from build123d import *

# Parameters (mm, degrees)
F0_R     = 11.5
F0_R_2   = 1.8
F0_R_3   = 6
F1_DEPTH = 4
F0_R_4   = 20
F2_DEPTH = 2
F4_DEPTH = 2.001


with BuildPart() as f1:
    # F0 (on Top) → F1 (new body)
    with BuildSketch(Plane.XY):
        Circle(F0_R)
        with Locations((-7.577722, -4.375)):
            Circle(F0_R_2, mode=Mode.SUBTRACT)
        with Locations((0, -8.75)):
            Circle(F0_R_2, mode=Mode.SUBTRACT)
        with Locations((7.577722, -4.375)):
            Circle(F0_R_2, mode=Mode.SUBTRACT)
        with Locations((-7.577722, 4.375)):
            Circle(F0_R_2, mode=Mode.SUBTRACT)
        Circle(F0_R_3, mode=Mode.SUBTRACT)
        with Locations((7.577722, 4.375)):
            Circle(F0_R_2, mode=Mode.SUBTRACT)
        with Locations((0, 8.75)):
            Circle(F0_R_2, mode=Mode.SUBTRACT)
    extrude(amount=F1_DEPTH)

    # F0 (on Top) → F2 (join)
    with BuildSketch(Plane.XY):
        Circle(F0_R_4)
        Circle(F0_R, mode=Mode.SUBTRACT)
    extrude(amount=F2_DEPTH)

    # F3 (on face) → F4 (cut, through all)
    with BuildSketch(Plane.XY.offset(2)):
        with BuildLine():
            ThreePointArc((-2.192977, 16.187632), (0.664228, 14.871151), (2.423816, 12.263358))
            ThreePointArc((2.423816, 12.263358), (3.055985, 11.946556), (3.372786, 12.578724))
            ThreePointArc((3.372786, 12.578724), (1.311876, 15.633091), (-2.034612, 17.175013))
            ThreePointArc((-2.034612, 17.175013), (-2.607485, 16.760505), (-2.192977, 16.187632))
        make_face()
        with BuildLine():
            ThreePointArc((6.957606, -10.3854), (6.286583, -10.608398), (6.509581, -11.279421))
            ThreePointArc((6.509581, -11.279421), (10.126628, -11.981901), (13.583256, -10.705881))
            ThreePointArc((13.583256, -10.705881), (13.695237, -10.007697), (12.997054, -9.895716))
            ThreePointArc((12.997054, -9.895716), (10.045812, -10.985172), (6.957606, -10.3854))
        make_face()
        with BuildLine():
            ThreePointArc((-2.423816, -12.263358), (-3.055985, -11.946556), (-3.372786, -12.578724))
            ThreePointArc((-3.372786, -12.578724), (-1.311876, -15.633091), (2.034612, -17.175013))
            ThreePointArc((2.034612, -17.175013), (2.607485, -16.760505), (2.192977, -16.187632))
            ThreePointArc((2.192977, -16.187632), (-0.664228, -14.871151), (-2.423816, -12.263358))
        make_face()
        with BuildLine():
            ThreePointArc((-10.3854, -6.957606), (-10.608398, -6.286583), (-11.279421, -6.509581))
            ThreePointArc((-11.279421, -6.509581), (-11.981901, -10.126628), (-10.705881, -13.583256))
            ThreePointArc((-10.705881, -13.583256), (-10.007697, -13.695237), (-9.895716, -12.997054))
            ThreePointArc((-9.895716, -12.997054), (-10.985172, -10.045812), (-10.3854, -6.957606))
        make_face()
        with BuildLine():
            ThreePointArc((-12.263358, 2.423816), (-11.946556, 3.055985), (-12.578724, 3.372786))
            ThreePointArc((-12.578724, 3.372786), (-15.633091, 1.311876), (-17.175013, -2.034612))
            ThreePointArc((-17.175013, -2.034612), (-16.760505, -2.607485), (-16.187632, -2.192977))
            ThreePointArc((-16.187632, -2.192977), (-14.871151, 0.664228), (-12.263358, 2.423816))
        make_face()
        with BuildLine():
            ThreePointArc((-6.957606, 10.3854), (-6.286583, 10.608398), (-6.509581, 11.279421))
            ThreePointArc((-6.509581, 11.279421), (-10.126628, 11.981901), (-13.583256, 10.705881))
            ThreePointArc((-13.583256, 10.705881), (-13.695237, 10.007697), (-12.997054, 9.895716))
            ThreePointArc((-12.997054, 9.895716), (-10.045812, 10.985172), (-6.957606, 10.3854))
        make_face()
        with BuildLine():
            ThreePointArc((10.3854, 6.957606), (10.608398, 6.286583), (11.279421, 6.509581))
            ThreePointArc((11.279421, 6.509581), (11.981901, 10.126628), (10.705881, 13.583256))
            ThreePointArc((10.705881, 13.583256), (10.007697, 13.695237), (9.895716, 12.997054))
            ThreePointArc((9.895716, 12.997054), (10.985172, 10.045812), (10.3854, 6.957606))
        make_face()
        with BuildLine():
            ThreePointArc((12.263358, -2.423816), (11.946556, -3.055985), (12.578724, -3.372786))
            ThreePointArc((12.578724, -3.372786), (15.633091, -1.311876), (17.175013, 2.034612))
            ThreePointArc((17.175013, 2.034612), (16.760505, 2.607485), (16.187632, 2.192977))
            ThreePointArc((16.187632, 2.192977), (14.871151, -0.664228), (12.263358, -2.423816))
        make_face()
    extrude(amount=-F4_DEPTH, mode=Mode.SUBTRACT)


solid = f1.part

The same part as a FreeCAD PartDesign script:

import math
import FreeCAD as App
import Part
import Sketcher
from FreeCAD import Vector

doc = App.newDocument("Part")
body = doc.addObject("PartDesign::Body", "Body")

sketch1 = body.newObject("Sketcher::SketchObject", "Sketch")
sketch1.AttachmentSupport = (doc.getObject("XY_Plane"), [""])
sketch1.MapMode = "FlatFace"
sketch1.addGeometry(Part.Circle(Vector(0, 0, 0), Vector(0, 0, 1), 11.5), False)
sketch1.addGeometry(Part.Circle(Vector(0, -8.8, 0), Vector(0, 0, 1), 1.8), False)
sketch1.addGeometry(Part.Circle(Vector(-7.6, -4.4, 0), Vector(0, 0, 1), 1.8), False)
sketch1.addGeometry(Part.Circle(Vector(7.6, -4.4, 0), Vector(0, 0, 1), 1.8), False)
sketch1.addGeometry(Part.Circle(Vector(-7.6, 4.4, 0), Vector(0, 0, 1), 1.8), False)
sketch1.addGeometry(Part.Circle(Vector(0, 0, 0), Vector(0, 0, 1), 6), False)
sketch1.addGeometry(Part.Circle(Vector(0, 8.8, 0), Vector(0, 0, 1), 1.8), False)
sketch1.addGeometry(Part.Circle(Vector(7.6, 4.4, 0), Vector(0, 0, 1), 1.8), False)
sketch1.addConstraint(Sketcher.Constraint("Coincident", 0, 3, -1, 1))
sketch1.addConstraint(Sketcher.Constraint("Coincident", 5, 3, -1, 1))
sketch1.addConstraint(Sketcher.Constraint("Equal", 1, 2))
sketch1.addConstraint(Sketcher.Constraint("Equal", 2, 3))
sketch1.addConstraint(Sketcher.Constraint("Equal", 3, 4))
sketch1.addConstraint(Sketcher.Constraint("Equal", 4, 6))
sketch1.addConstraint(Sketcher.Constraint("Equal", 6, 7))
sketch1.addConstraint(Sketcher.Constraint("Symmetric", 3, 3, 4, 3, -1, 1))
sketch1.addConstraint(Sketcher.Constraint("Symmetric", 1, 3, 6, 3, -1, 1))
sketch1.addConstraint(Sketcher.Constraint("Symmetric", 2, 3, 7, 3, -1, 1))
sketch1.addConstraint(Sketcher.Constraint("Symmetric", 2, 3, 3, 3, -2))
sketch1.addConstraint(Sketcher.Constraint("PointOnObject", 1, 3, -2))
sketch1.addConstraint(Sketcher.Constraint("Diameter", 0, 23.0))
sketch1.addConstraint(Sketcher.Constraint("Diameter", 5, 12.0))
sketch1.addConstraint(Sketcher.Constraint("Diameter", 1, 3.6))
sketch1.addConstraint(Sketcher.Constraint("DistanceY", 1, 3, -1, 1, 8.75))
sketch1.addConstraint(Sketcher.Constraint("DistanceY", 2, 3, 4, 3, 8.75))
sketch1.addConstraint(Sketcher.Constraint("DistanceX", 2, 3, -1, 1, 7.577722))
pad1 = body.newObject("PartDesign::Pad", "Pad")
pad1.Profile = sketch1
pad1.Length = 4

sketch2 = body.newObject("Sketcher::SketchObject", "Sketch001")
sketch2.AttachmentSupport = (doc.getObject("XY_Plane"), [""])
sketch2.MapMode = "FlatFace"
sketch2.addGeometry(Part.Circle(Vector(0, 0, 0), Vector(0, 0, 1), 20), False)
sketch2.addGeometry(Part.Circle(Vector(0, 0, 0), Vector(0, 0, 1), 12), False)
sketch2.addConstraint(Sketcher.Constraint("Coincident", 0, 3, -1, 1))
sketch2.addConstraint(Sketcher.Constraint("Coincident", 1, 3, -1, 1))
sketch2.addConstraint(Sketcher.Constraint("Diameter", 0, 40.0))
sketch2.addConstraint(Sketcher.Constraint("Diameter", 1, 23.0))
pad2 = body.newObject("PartDesign::Pad", "Pad001")
pad2.Profile = sketch2
pad2.Length = 2

sketch3 = body.newObject("Sketcher::SketchObject", "Sketch002")
sketch3.AttachmentSupport = (doc.getObject("XY_Plane"), [""])
sketch3.MapMode = "FlatFace"
sketch3.AttachmentOffset = App.Placement(Vector(0, 0, 2), App.Rotation())
sketch3.addGeometry(Part.ArcOfCircle(Part.Circle(Vector(-3.12, 10.42, 0), Vector(0, 0, 1), 5.84), math.radians(18), math.radians(81)), False)
sketch3.addGeometry(Part.ArcOfCircle(Part.Circle(Vector(2.9, 12.42, 0), Vector(0, 0, 1), 0.5), math.radians(-162), math.radians(18)), False)
sketch3.addGeometry(Part.ArcOfCircle(Part.Circle(Vector(-3.12, 10.42, 0), Vector(0, 0, 1), 6.84), math.radians(18), math.radians(81)), False)
sketch3.addGeometry(Part.ArcOfCircle(Part.Circle(Vector(-2.11, 16.68, 0), Vector(0, 0, 1), 0.5), math.radians(81), math.radians(261)), False)
sketch3.addGeometry(Part.ArcOfCircle(Part.Circle(Vector(6.73, -10.83, 0), Vector(0, 0, 1), 0.5), math.radians(63), math.radians(243)), False)
sketch3.addGeometry(Part.ArcOfCircle(Part.Circle(Vector(9.57, -5.16, 0), Vector(0, 0, 1), 6.84), math.radians(-117), math.radians(-54)), False)
sketch3.addGeometry(Part.ArcOfCircle(Part.Circle(Vector(13.29, -10.3, 0), Vector(0, 0, 1), 0.5), math.radians(-54), math.radians(126)), False)
sketch3.addGeometry(Part.ArcOfCircle(Part.Circle(Vector(9.57, -5.16, 0), Vector(0, 0, 1), 5.84), math.radians(-117), math.radians(-54)), False)
sketch3.addGeometry(Part.ArcOfCircle(Part.Circle(Vector(-2.9, -12.42, 0), Vector(0, 0, 1), 0.5), math.radians(18), math.radians(198)), False)
sketch3.addGeometry(Part.ArcOfCircle(Part.Circle(Vector(3.12, -10.42, 0), Vector(0, 0, 1), 6.84), math.radians(-162), math.radians(-99)), False)
sketch3.addGeometry(Part.ArcOfCircle(Part.Circle(Vector(2.11, -16.68, 0), Vector(0, 0, 1), 0.5), math.radians(-99), math.radians(81)), False)
sketch3.addGeometry(Part.ArcOfCircle(Part.Circle(Vector(3.12, -10.42, 0), Vector(0, 0, 1), 5.84), math.radians(-162), math.radians(-99)), False)
sketch3.addGeometry(Part.ArcOfCircle(Part.Circle(Vector(-10.83, -6.73, 0), Vector(0, 0, 1), 0.5), math.radians(-27), math.radians(153)), False)
sketch3.addGeometry(Part.ArcOfCircle(Part.Circle(Vector(-5.16, -9.57, 0), Vector(0, 0, 1), 6.84), math.radians(153), math.radians(216)), False)
sketch3.addGeometry(Part.ArcOfCircle(Part.Circle(Vector(-10.3, -13.29, 0), Vector(0, 0, 1), 0.5), math.radians(-144), math.radians(36)), False)
sketch3.addGeometry(Part.ArcOfCircle(Part.Circle(Vector(-5.16, -9.57, 0), Vector(0, 0, 1), 5.84), math.radians(153), math.radians(216)), False)
sketch3.addGeometry(Part.ArcOfCircle(Part.Circle(Vector(-12.42, 2.9, 0), Vector(0, 0, 1), 0.5), math.radians(-72), math.radians(108)), False)
sketch3.addGeometry(Part.ArcOfCircle(Part.Circle(Vector(-10.42, -3.12, 0), Vector(0, 0, 1), 6.84), math.radians(108), math.radians(171)), False)
sketch3.addGeometry(Part.ArcOfCircle(Part.Circle(Vector(-16.68, -2.11, 0), Vector(0, 0, 1), 0.5), math.radians(171), math.radians(351)), False)
sketch3.addGeometry(Part.ArcOfCircle(Part.Circle(Vector(-10.42, -3.12, 0), Vector(0, 0, 1), 5.84), math.radians(108), math.radians(171)), False)
sketch3.addGeometry(Part.ArcOfCircle(Part.Circle(Vector(-6.73, 10.83, 0), Vector(0, 0, 1), 0.5), math.radians(-117), math.radians(63)), False)
sketch3.addGeometry(Part.ArcOfCircle(Part.Circle(Vector(-9.57, 5.16, 0), Vector(0, 0, 1), 6.84), math.radians(63), math.radians(126)), False)
sketch3.addGeometry(Part.ArcOfCircle(Part.Circle(Vector(-13.29, 10.3, 0), Vector(0, 0, 1), 0.5), math.radians(126), math.radians(306)), False)
sketch3.addGeometry(Part.ArcOfCircle(Part.Circle(Vector(-9.57, 5.16, 0), Vector(0, 0, 1), 5.84), math.radians(63), math.radians(126)), False)
sketch3.addGeometry(Part.ArcOfCircle(Part.Circle(Vector(10.83, 6.73, 0), Vector(0, 0, 1), 0.5), math.radians(153), math.radians(333)), False)
sketch3.addGeometry(Part.ArcOfCircle(Part.Circle(Vector(5.16, 9.57, 0), Vector(0, 0, 1), 6.84), math.radians(-27), math.radians(36)), False)
sketch3.addGeometry(Part.ArcOfCircle(Part.Circle(Vector(10.3, 13.29, 0), Vector(0, 0, 1), 0.5), math.radians(36), math.radians(216)), False)
sketch3.addGeometry(Part.ArcOfCircle(Part.Circle(Vector(5.16, 9.57, 0), Vector(0, 0, 1), 5.84), math.radians(-27), math.radians(36)), False)
sketch3.addGeometry(Part.ArcOfCircle(Part.Circle(Vector(12.42, -2.9, 0), Vector(0, 0, 1), 0.5), math.radians(108), math.radians(288)), False)
sketch3.addGeometry(Part.ArcOfCircle(Part.Circle(Vector(10.42, 3.12, 0), Vector(0, 0, 1), 6.84), math.radians(-72), math.radians(-9)), False)
sketch3.addGeometry(Part.ArcOfCircle(Part.Circle(Vector(16.68, 2.11, 0), Vector(0, 0, 1), 0.5), math.radians(-9), math.radians(171)), False)
sketch3.addGeometry(Part.ArcOfCircle(Part.Circle(Vector(10.42, 3.12, 0), Vector(0, 0, 1), 5.84), math.radians(-72), math.radians(-9)), False)
sketch3.addConstraint(Sketcher.Constraint("Tangent", 0, 1, 1, 1))
sketch3.addConstraint(Sketcher.Constraint("Tangent", 1, 2, 2, 1))
sketch3.addConstraint(Sketcher.Constraint("Tangent", 2, 2, 3, 1))
sketch3.addConstraint(Sketcher.Constraint("Tangent", 3, 2, 0, 2))
sketch3.addConstraint(Sketcher.Constraint("Tangent", 4, 2, 5, 1))
sketch3.addConstraint(Sketcher.Constraint("Tangent", 5, 2, 6, 1))
sketch3.addConstraint(Sketcher.Constraint("Tangent", 6, 2, 7, 2))
sketch3.addConstraint(Sketcher.Constraint("Tangent", 7, 1, 4, 1))
sketch3.addConstraint(Sketcher.Constraint("Tangent", 8, 2, 9, 1))
sketch3.addConstraint(Sketcher.Constraint("Tangent", 9, 2, 10, 1))
sketch3.addConstraint(Sketcher.Constraint("Tangent", 10, 2, 11, 2))
sketch3.addConstraint(Sketcher.Constraint("Tangent", 11, 1, 8, 1))
sketch3.addConstraint(Sketcher.Constraint("Tangent", 12, 2, 13, 1))
sketch3.addConstraint(Sketcher.Constraint("Tangent", 13, 2, 14, 1))
sketch3.addConstraint(Sketcher.Constraint("Tangent", 14, 2, 15, 2))
sketch3.addConstraint(Sketcher.Constraint("Tangent", 15, 1, 12, 1))
sketch3.addConstraint(Sketcher.Constraint("Tangent", 16, 2, 17, 1))
sketch3.addConstraint(Sketcher.Constraint("Tangent", 17, 2, 18, 1))
sketch3.addConstraint(Sketcher.Constraint("Tangent", 18, 2, 19, 2))
sketch3.addConstraint(Sketcher.Constraint("Tangent", 19, 1, 16, 1))
sketch3.addConstraint(Sketcher.Constraint("Tangent", 20, 2, 21, 1))
sketch3.addConstraint(Sketcher.Constraint("Tangent", 21, 2, 22, 1))
sketch3.addConstraint(Sketcher.Constraint("Tangent", 22, 2, 23, 2))
sketch3.addConstraint(Sketcher.Constraint("Tangent", 23, 1, 20, 1))
sketch3.addConstraint(Sketcher.Constraint("Tangent", 24, 2, 25, 1))
sketch3.addConstraint(Sketcher.Constraint("Tangent", 25, 2, 26, 1))
sketch3.addConstraint(Sketcher.Constraint("Tangent", 26, 2, 27, 2))
sketch3.addConstraint(Sketcher.Constraint("Tangent", 27, 1, 24, 1))
sketch3.addConstraint(Sketcher.Constraint("Tangent", 28, 2, 29, 1))
sketch3.addConstraint(Sketcher.Constraint("Tangent", 29, 2, 30, 1))
sketch3.addConstraint(Sketcher.Constraint("Tangent", 30, 2, 31, 2))
sketch3.addConstraint(Sketcher.Constraint("Tangent", 31, 1, 28, 1))
sketch3.addConstraint(Sketcher.Constraint("Coincident", 2, 3, 0, 3))
sketch3.addConstraint(Sketcher.Constraint("Coincident", 7, 3, 5, 3))
sketch3.addConstraint(Sketcher.Constraint("Coincident", 11, 3, 9, 3))
sketch3.addConstraint(Sketcher.Constraint("Coincident", 15, 3, 13, 3))
sketch3.addConstraint(Sketcher.Constraint("Coincident", 19, 3, 17, 3))
sketch3.addConstraint(Sketcher.Constraint("Coincident", 23, 3, 21, 3))
sketch3.addConstraint(Sketcher.Constraint("Coincident", 27, 3, 25, 3))
sketch3.addConstraint(Sketcher.Constraint("Coincident", 31, 3, 29, 3))
sketch3.addConstraint(Sketcher.Constraint("Equal", 3, 4))
sketch3.addConstraint(Sketcher.Constraint("Equal", 6, 8))
sketch3.addConstraint(Sketcher.Constraint("Equal", 2, 9))
sketch3.addConstraint(Sketcher.Constraint("Equal", 10, 12))
sketch3.addConstraint(Sketcher.Constraint("Equal", 5, 13))
sketch3.addConstraint(Sketcher.Constraint("Equal", 14, 16))
sketch3.addConstraint(Sketcher.Constraint("Equal", 9, 17))
sketch3.addConstraint(Sketcher.Constraint("Equal", 18, 20))
sketch3.addConstraint(Sketcher.Constraint("Equal", 13, 21))
sketch3.addConstraint(Sketcher.Constraint("Equal", 22, 24))
sketch3.addConstraint(Sketcher.Constraint("Equal", 21, 25))
sketch3.addConstraint(Sketcher.Constraint("Equal", 26, 28))
sketch3.addConstraint(Sketcher.Constraint("Equal", 17, 29))
sketch3.addConstraint(Sketcher.Constraint("Symmetric", 1, 3, 8, 3, -1, 1))
sketch3.addConstraint(Sketcher.Constraint("Symmetric", 3, 3, 10, 3, -1, 1))
sketch3.addConstraint(Sketcher.Constraint("Symmetric", 4, 3, 20, 3, -1, 1))
sketch3.addConstraint(Sketcher.Constraint("Symmetric", 6, 3, 22, 3, -1, 1))
sketch3.addConstraint(Sketcher.Constraint("Symmetric", 12, 3, 24, 3, -1, 1))
sketch3.addConstraint(Sketcher.Constraint("Symmetric", 14, 3, 26, 3, -1, 1))
sketch3.addConstraint(Sketcher.Constraint("Symmetric", 16, 3, 28, 3, -1, 1))
sketch3.addConstraint(Sketcher.Constraint("Symmetric", 18, 3, 30, 3, -1, 1))
sketch3.addConstraint(Sketcher.Constraint("Radius", 1, 0.5))
sketch3.addConstraint(Sketcher.Constraint("Radius", 0, 5.839572))
sketch3.addConstraint(Sketcher.Constraint("Radius", 5, 6.839574))
sketch3.addConstraint(Sketcher.Constraint("DistanceX", -1, 1, 1, 3, 2.898301))
sketch3.addConstraint(Sketcher.Constraint("DistanceY", 5, 3, -1, 1, 5.164699))
sketch3.addConstraint(Sketcher.Constraint("DistanceY", 6, 3, -1, 1, 10.300799))
sketch3.addConstraint(Sketcher.Constraint("DistanceX", 13, 3, -1, 1, 5.164699))
sketch3.addConstraint(Sketcher.Constraint("DistanceX", 14, 3, -1, 1, 10.300799))
sketch3.addConstraint(Sketcher.Constraint("DistanceY", -1, 1, 16, 3, 2.898301))
sketch3.addConstraint(Sketcher.Constraint("DistanceY", 7, 1, -1, 1, 10.3854))
sketch3.addConstraint(Sketcher.Constraint("DistanceX", 15, 1, -1, 1, 10.3854))
sketch3.addConstraint(Sketcher.Constraint("DistanceX", 0, 3, -1, 1, 3.117762))
sketch3.addConstraint(Sketcher.Constraint("DistanceY", -1, 1, 1, 3, 12.421041))
sketch3.addConstraint(Sketcher.Constraint("DistanceX", 16, 3, -1, 1, 12.421041))
sketch3.addConstraint(Sketcher.Constraint("DistanceY", 17, 3, -1, 1, 3.117762))
sketch3.addConstraint(Sketcher.Constraint("DistanceX", 2, 2, -1, 1, 2.034612))
sketch3.addConstraint(Sketcher.Constraint("DistanceX", -1, 1, 4, 2, 6.509581))
sketch3.addConstraint(Sketcher.Constraint("DistanceY", 12, 2, -1, 1, 6.509581))
sketch3.addConstraint(Sketcher.Constraint("DistanceY", 17, 2, -1, 1, 2.034612))
pocket1 = body.newObject("PartDesign::Pocket", "Pocket")
pocket1.Profile = sketch3
pocket1.Type = "ThroughAll"

doc.recompute()
